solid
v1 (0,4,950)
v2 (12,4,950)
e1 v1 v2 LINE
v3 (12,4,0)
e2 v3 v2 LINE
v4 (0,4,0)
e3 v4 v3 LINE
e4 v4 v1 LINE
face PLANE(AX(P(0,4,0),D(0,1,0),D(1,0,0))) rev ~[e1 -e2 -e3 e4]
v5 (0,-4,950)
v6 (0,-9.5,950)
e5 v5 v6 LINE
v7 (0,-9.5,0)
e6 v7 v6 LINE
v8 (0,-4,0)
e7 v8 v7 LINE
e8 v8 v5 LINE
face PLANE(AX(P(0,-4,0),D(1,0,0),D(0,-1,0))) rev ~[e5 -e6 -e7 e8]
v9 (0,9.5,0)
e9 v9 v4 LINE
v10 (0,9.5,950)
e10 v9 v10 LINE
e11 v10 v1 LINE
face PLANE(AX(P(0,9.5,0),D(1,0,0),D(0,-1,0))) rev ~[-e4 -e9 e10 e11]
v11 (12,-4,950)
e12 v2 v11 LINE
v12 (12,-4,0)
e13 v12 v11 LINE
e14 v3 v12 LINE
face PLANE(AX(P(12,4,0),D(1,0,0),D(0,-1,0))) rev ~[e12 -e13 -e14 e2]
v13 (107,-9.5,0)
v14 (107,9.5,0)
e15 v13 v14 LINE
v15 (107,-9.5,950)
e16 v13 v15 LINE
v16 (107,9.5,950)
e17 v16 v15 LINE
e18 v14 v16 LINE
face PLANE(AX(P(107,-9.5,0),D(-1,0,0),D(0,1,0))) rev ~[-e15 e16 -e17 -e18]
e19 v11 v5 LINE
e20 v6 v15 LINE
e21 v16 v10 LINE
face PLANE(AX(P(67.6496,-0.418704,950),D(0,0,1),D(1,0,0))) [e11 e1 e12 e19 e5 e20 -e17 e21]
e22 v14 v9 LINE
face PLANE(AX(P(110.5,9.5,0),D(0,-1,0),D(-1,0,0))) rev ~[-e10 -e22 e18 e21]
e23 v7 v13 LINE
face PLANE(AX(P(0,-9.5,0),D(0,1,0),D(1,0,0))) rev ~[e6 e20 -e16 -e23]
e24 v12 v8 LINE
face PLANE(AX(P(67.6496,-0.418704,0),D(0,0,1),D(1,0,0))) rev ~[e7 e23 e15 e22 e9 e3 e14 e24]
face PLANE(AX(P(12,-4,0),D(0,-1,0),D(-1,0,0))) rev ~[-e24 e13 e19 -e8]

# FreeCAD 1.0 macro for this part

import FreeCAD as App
import Part
import Sketcher
Q = App.Units.Quantity

doc = App.newDocument("Part")
body = doc.addObject("PartDesign::Body", "Body")

# Sketch on XY plane
sketch1 = body.newObject("Sketcher::SketchObject", "Sketch")
sketch1.AttachmentSupport = (doc.getObject("XY_Plane"), [""])
sketch1.MapMode = "FlatFace"
sketch1.addGeometry([
    Part.LineSegment(App.Vector(0, -4, 0), App.Vector(0, -10, 0)),  # 0
    Part.LineSegment(App.Vector(0, -10, 0), App.Vector(136, -10, 0)),  # 1
    Part.LineSegment(App.Vector(136, -10, 0), App.Vector(136, -4, 0)),  # 2
    Part.LineSegment(App.Vector(136, -4, 0), App.Vector(146, -4, 0)),  # 3
    Part.LineSegment(App.Vector(146, -4, 0), App.Vector(146, 4, 0)),  # 4
    Part.LineSegment(App.Vector(146, 4, 0), App.Vector(116, 4, 0)),  # 5
    Part.LineSegment(App.Vector(116, 4, 0), App.Vector(110, 10, 0)),  # 6
    Part.LineSegment(App.Vector(110, 10, 0), App.Vector(0, 10, 0)),  # 7
    Part.LineSegment(App.Vector(0, 10, 0), App.Vector(0, 4, 0)),  # 8
    Part.LineSegment(App.Vector(0, 4, 0), App.Vector(12, 4, 0)),  # 9
    Part.LineSegment(App.Vector(12, 4, 0), App.Vector(12, -4, 0)),  # 10
    Part.LineSegment(App.Vector(12, -4, 0), App.Vector(0, -4, 0)),  # 11
], False)
sketch1.addConstraint([
    Sketcher.Constraint("Coincident", 0, 2, 1, 1),
    Sketcher.Constraint("Coincident", 1, 2, 2, 1),
    Sketcher.Constraint("Coincident", 2, 2, 3, 1),
    Sketcher.Constraint("Coincident", 3, 2, 4, 1),
    Sketcher.Constraint("Coincident", 4, 2, 5, 1),
    Sketcher.Constraint("Coincident", 5, 2, 6, 1),
    Sketcher.Constraint("Coincident", 6, 2, 7, 1),
    Sketcher.Constraint("Coincident", 7, 2, 8, 1),
    Sketcher.Constraint("Coincident", 8, 2, 9, 1),
    Sketcher.Constraint("Coincident", 9, 2, 10, 1),
    Sketcher.Constraint("Coincident", 10, 2, 11, 1),
    Sketcher.Constraint("Coincident", 11, 2, 0, 1),
    Sketcher.Constraint("Vertical", 0),
    Sketcher.Constraint("Horizontal", 1),
    Sketcher.Constraint("Vertical", 2),
    Sketcher.Constraint("Horizontal", 3),
    Sketcher.Constraint("Vertical", 4),
    Sketcher.Constraint("Horizontal", 5),
    Sketcher.Constraint("Horizontal", 7),
    Sketcher.Constraint("Vertical", 8),
    Sketcher.Constraint("Horizontal", 9),
    Sketcher.Constraint("Vertical", 10),
    Sketcher.Constraint("Horizontal", 11),
    Sketcher.Constraint("Symmetric", 0, 2, 7, 2, -1, 1),
    Sketcher.Constraint("Symmetric", 8, 2, 11, 2, -1),
    Sketcher.Constraint("Horizontal", 5, 2, 8, 2),
    Sketcher.Constraint("Horizontal", 3, 2, 10, 2),
    Sketcher.Constraint("DistanceX", 1, 1, 1, 2, 136.0),
    Sketcher.Constraint("DistanceX", 3, 1, 3, 2, 10.0),
    Sketcher.Constraint("DistanceX", 5, 2, 5, 1, 30.0),
    Sketcher.Constraint("DistanceX", 9, 1, 9, 2, 12.0),
    Sketcher.Constraint("DistanceY", 4, 1, 4, 2, 8.0),
    Sketcher.Constraint("Angle", 6, Q("135 deg")),
    Sketcher.Constraint("DistanceX", 7, 2, 7, 1, 110.5),
])
pad1 = body.newObject("PartDesign::Pad", "Pad")
pad1.Profile = sketch1
pad1.Length = 950

# Sketch on XY plane
sketch2 = body.newObject("Sketcher::SketchObject", "Sketch001")
sketch2.AttachmentSupport = (doc.getObject("XY_Plane"), [""])
sketch2.MapMode = "FlatFace"
sketch2.addGeometry([
    Part.LineSegment(App.Vector(107, -9.5, 0), App.Vector(107, 9.5, 0)),  # 0
    Part.LineSegment(App.Vector(107, 9.5, 0), App.Vector(110.5, 9.5, 0)),  # 1
    Part.LineSegment(App.Vector(110.5, 9.5, 0), App.Vector(116, 4, 0)),  # 2
    Part.LineSegment(App.Vector(116, 4, 0), App.Vector(146, 4, 0)),  # 3
    Part.LineSegment(App.Vector(146, 4, 0), App.Vector(146, -4, 0)),  # 4
    Part.LineSegment(App.Vector(146, -4, 0), App.Vector(136, -4, 0)),  # 5
    Part.LineSegment(App.Vector(136, -4, 0), App.Vector(136, -9.5, 0)),  # 6
    Part.LineSegment(App.Vector(136, -9.5, 0), App.Vector(107, -9.5, 0)),  # 7
], False)
sketch2.addConstraint([
    Sketcher.Constraint("Coincident", 0, 2, 1, 1),
    Sketcher.Constraint("Coincident", 1, 2, 2, 1),
    Sketcher.Constraint("Coincident", 2, 2, 3, 1),
    Sketcher.Constraint("Coincident", 3, 2, 4, 1),
    Sketcher.Constraint("Coincident", 4, 2, 5, 1),
    Sketcher.Constraint("Coincident", 5, 2, 6, 1),
    Sketcher.Constraint("Coincident", 6, 2, 7, 1),
    Sketcher.Constraint("Coincident", 7, 2, 0, 1),
    Sketcher.Constraint("Vertical", 0),
    Sketcher.Constraint("Horizontal", 1),
    Sketcher.Constraint("Horizontal", 3),
    Sketcher.Constraint("Vertical", 4),
    Sketcher.Constraint("Horizontal", 5),
    Sketcher.Constraint("Vertical", 6),
    Sketcher.Constraint("Horizontal", 7),
    Sketcher.Constraint("DistanceX", 3, 1, 3, 2, 30.0),
    Sketcher.Constraint("DistanceX", 5, 2, 5, 1, 10.0),
    Sketcher.Constraint("DistanceX", 7, 2, 7, 1, 29.0),
    Sketcher.Constraint("DistanceY", 0, 1, 0, 2, 19.0),
    Sketcher.Constraint("DistanceY", 4, 2, 4, 1, 8.0),
    Sketcher.Constraint("Angle", 2, Q("-45 deg")),
    Sketcher.Constraint("DistanceX", 1, 1, 1, 2, 3.5),
    Sketcher.Constraint("DistanceX", -1, 1, 0, 2, 107.0),
    Sketcher.Constraint("DistanceY", -1, 1, 2, 2, 4.0),
])
pocket1 = body.newObject("PartDesign::Pocket", "Pocket")
pocket1.Profile = sketch2
pocket1.Type = "ThroughAll"
pocket1.Reversed = True

doc.recompute()
